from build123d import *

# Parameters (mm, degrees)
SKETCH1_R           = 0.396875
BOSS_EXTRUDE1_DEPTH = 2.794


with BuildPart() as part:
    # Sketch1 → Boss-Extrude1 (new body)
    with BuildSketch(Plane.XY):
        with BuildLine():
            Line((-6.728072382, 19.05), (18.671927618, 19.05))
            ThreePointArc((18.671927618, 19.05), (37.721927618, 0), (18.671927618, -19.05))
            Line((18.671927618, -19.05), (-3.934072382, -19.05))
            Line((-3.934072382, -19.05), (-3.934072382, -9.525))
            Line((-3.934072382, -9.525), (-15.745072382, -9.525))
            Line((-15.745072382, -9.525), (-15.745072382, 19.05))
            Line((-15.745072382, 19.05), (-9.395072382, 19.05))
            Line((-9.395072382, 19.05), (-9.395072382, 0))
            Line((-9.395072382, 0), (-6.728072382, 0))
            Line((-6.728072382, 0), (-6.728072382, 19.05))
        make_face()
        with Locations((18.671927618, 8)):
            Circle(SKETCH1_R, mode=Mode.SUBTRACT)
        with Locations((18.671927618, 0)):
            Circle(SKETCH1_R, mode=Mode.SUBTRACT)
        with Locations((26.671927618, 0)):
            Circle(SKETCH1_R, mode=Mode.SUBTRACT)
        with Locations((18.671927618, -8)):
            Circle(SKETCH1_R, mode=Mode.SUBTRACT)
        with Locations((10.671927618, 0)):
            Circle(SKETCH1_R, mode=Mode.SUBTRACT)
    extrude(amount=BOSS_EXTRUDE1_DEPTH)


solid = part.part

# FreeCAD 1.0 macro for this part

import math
import FreeCAD as App
import Part
import Sketcher
Q = App.Units.Quantity

doc = App.newDocument("Part")
body = doc.addObject("PartDesign::Body", "Body")

# Sketch on XY plane
sketch1 = doc.addObject("Sketcher::SketchObject", "Sketch")
body.addObject(sketch1)
sketch1.AttachmentSupport = (doc.XY_Plane, [""])
sketch1.MapMode = "FlatFace"
sketch1.addGeometry(Part.LineSegment(App.Vector(18.671928, 19.05, 0), App.Vector(-6.728072, 19.05, 0)), False)
sketch1.addGeometry(Part.LineSegment(App.Vector(-6.728072, 19.05, 0), App.Vector(-6.728072, 0, 0)), False)
sketch1.addGeometry(Part.LineSegment(App.Vector(-6.728072, 0, 0), App.Vector(-9.395072, 0, 0)), False)
sketch1.addGeometry(Part.LineSegment(App.Vector(-9.395072, 0, 0), App.Vector(-9.395072, 19.05, 0)), False)
sketch1.addGeometry(Part.LineSegment(App.Vector(-9.395072, 19.05, 0), App.Vector(-15.745072, 19.05, 0)), False)
sketch1.addGeometry(Part.LineSegment(App.Vector(-15.745072, 19.05, 0), App.Vector(-15.745072, -9.525, 0)), False)
sketch1.addGeometry(Part.LineSegment(App.Vector(-15.745072, -9.525, 0), App.Vector(-3.934072, -9.525, 0)), False)
sketch1.addGeometry(Part.LineSegment(App.Vector(-3.934072, -9.525, 0), App.Vector(-3.934072, -19.05, 0)), False)
sketch1.addGeometry(Part.LineSegment(App.Vector(-3.934072, -19.05, 0), App.Vector(18.671928, -19.05, 0)), False)
sketch1.addGeometry(Part.ArcOfCircle(Part.Circle(App.Vector(18.671928, 0, 0), App.Vector(0, 0, 1), 19.05), math.radians(-90), math.radians(90)), False)
sketch1.addGeometry(Part.Circle(App.Vector(18.671928, -8, 0), App.Vector(0, 0, 1), 0.396875), False)
sketch1.addGeometry(Part.Circle(App.Vector(26.671928, 0, 0), App.Vector(0, 0, 1), 0.396875), False)
sketch1.addGeometry(Part.Circle(App.Vector(18.671928, 0, 0), App.Vector(0, 0, 1), 0.396875), False)
sketch1.addGeometry(Part.Circle(App.Vector(18.671928, 8, 0), App.Vector(0, 0, 1), 0.396875), False)
sketch1.addGeometry(Part.Circle(App.Vector(10.671928, 0, 0), App.Vector(0, 0, 1), 0.396875), False)
sketch1.addConstraint(Sketcher.Constraint("Coincident", 0, 2, 1, 1))
sketch1.addConstraint(Sketcher.Constraint("Coincident", 1, 2, 2, 1))
sketch1.addConstraint(Sketcher.Constraint("Coincident", 2, 2, 3, 1))
sketch1.addConstraint(Sketcher.Constraint("Coincident", 3, 2, 4, 1))
sketch1.addConstraint(Sketcher.Constraint("Coincident", 4, 2, 5, 1))
sketch1.addConstraint(Sketcher.Constraint("Coincident", 5, 2, 6, 1))
sketch1.addConstraint(Sketcher.Constraint("Coincident", 6, 2, 7, 1))
sketch1.addConstraint(Sketcher.Constraint("Coincident", 7, 2, 8, 1))
sketch1.addConstraint(Sketcher.Constraint("Tangent", 8, 2, 9, 1))
sketch1.addConstraint(Sketcher.Constraint("Tangent", 9, 2, 0, 1))
sketch1.addConstraint(Sketcher.Constraint("Horizontal", 0))
sketch1.addConstraint(Sketcher.Constraint("Vertical", 1))
sketch1.addConstraint(Sketcher.Constraint("Horizontal", 2))
sketch1.addConstraint(Sketcher.Constraint("Vertical", 3))
sketch1.addConstraint(Sketcher.Constraint("Horizontal", 4))
sketch1.addConstraint(Sketcher.Constraint("Vertical", 5))
sketch1.addConstraint(Sketcher.Constraint("Horizontal", 6))
sketch1.addConstraint(Sketcher.Constraint("Vertical", 7))
sketch1.addConstraint(Sketcher.Constraint("Horizontal", 8))
sketch1.addConstraint(Sketcher.Constraint("Coincident", 12, 3, 9, 3))
sketch1.addConstraint(Sketcher.Constraint("Equal", 10, 11))
sketch1.addConstraint(Sketcher.Constraint("Equal", 11, 12))
sketch1.addConstraint(Sketcher.Constraint("Equal", 12, 13))
sketch1.addConstraint(Sketcher.Constraint("Equal", 13, 14))
sketch1.addConstraint(Sketcher.Constraint("Symmetric", 10, 3, 13, 3, -1))
sketch1.addConstraint(Sketcher.Constraint("PointOnObject", 9, 3, -1))
sketch1.addConstraint(Sketcher.Constraint("PointOnObject", 11, 3, -1))
sketch1.addConstraint(Sketcher.Constraint("PointOnObject", 14, 3, -1))
sketch1.addConstraint(Sketcher.Constraint("PointOnObject", 1, 2, -1))
sketch1.addConstraint(Sketcher.Constraint("Horizontal", 0, 2, 3, 2))
sketch1.addConstraint(Sketcher.Constraint("Vertical", 9, 3, 10, 3))
sketch1.addConstraint(Sketcher.Constraint("DistanceX", 0, 2, 0, 1, Q("1 in")))
sketch1.addConstraint(Sketcher.Constraint("Radius", 9, Q("0.75 in")))
sketch1.addConstraint(Sketcher.Constraint("Diameter", 10, Q("0.03125 in")))
sketch1.addConstraint(Sketcher.Constraint("DistanceX", 4, 2, 4, 1, Q("0.25 in")))
sketch1.addConstraint(Sketcher.Constraint("DistanceX", 8, 1, 8, 2, Q("0.89 in")))
sketch1.addConstraint(Sketcher.Constraint("DistanceX", 2, 2, 2, 1, Q("0.105 in")))
sketch1.addConstraint(Sketcher.Constraint("DistanceY", 5, 2, 5, 1, Q("1.125 in")))
sketch1.addConstraint(Sketcher.Constraint("DistanceY", 10, 3, -1, 1, Q("8 mm")))
sketch1.addConstraint(Sketcher.Constraint("DistanceX", 9, 3, 11, 3, Q("8 mm")))
sketch1.addConstraint(Sketcher.Constraint("DistanceX", 14, 3, 9, 3, Q("8 mm")))
sketch1.addConstraint(Sketcher.Constraint("DistanceX", -1, 1, 9, 3, Q("18.671928 mm")))
pad1 = doc.addObject("PartDesign::Pad", "Pad")
body.addObject(pad1)
pad1.Profile = sketch1
pad1.Length = Q("0.11 in")

doc.recompute()
